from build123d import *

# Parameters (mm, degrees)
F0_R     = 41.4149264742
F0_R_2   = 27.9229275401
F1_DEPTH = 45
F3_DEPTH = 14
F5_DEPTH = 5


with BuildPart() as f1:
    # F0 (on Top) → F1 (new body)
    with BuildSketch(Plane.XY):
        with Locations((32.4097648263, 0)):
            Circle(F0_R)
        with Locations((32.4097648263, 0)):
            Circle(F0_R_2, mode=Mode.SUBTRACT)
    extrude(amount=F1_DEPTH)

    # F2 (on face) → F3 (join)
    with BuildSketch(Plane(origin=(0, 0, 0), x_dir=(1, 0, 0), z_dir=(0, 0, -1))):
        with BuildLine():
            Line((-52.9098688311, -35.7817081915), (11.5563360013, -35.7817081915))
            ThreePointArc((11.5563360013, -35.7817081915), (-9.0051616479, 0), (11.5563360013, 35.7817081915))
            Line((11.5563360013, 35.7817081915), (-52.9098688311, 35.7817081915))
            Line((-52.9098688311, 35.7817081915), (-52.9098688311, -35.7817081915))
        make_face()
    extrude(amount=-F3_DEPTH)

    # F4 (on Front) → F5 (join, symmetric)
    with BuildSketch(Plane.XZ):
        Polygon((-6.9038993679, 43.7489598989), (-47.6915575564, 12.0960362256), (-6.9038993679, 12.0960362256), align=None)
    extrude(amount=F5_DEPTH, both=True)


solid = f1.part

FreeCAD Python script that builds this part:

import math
import FreeCAD as App
import Part
import Sketcher
from FreeCAD import Vector

doc = App.newDocument("Part")
body = doc.addObject("PartDesign::Body", "Body")

# Sketch on XY plane
sketch1 = doc.addObject("Sketcher::SketchObject", "Sketch")
body.addObject(sketch1)
sketch1.AttachmentSupport = (doc.XY_Plane, [""])
sketch1.MapMode = "FlatFace"
sketch1.addGeometry([
    Part.Circle(Vector(32, 0, 0), Vector(0, 0, 1), 41),
    Part.Circle(Vector(32, 0, 0), Vector(0, 0, 1), 28),
], False)
sketch1.addConstraint([
    Sketcher.Constraint("Coincident", 1, 3, 0, 3),
    Sketcher.Constraint("PointOnObject", 0, 3, -1),
    Sketcher.Constraint("Diameter", 0, 82.829853),
    Sketcher.Constraint("Diameter", 1, 55.845855),
    Sketcher.Constraint("DistanceX", -1, 1, 0, 3, 32.409765),
])
pad1 = doc.addObject("PartDesign::Pad", "Pad")
body.addObject(pad1)
pad1.Profile = sketch1
pad1.Length = 45

# Sketch on XY plane
sketch2 = doc.addObject("Sketcher::SketchObject", "Sketch001")
body.addObject(sketch2)
sketch2.AttachmentSupport = (doc.XY_Plane, [""])
sketch2.MapMode = "FlatFace"
sketch2.addGeometry([
    Part.LineSegment(Vector(-53, 36, 0), Vector(12, 36, 0)),
    Part.ArcOfCircle(Part.Circle(Vector(32, 0, 0), Vector(0, 0, 1), 41), math.radians(120), math.radians(240)),
    Part.LineSegment(Vector(12, -36, 0), Vector(-53, -36, 0)),
    Part.LineSegment(Vector(-53, -36, 0), Vector(-53, 36, 0)),
], False)
sketch2.addConstraint([
    Sketcher.Constraint("Coincident", 0, 2, 1, 1),
    Sketcher.Constraint("Coincident", 1, 2, 2, 1),
    Sketcher.Constraint("Coincident", 2, 2, 3, 1),
    Sketcher.Constraint("Coincident", 3, 2, 0, 1),
    Sketcher.Constraint("Horizontal", 0),
    Sketcher.Constraint("Horizontal", 2),
    Sketcher.Constraint("Vertical", 3),
    Sketcher.Constraint("Symmetric", 0, 2, 1, 2, -1),
    Sketcher.Constraint("Radius", 1, 41.414926),
    Sketcher.Constraint("DistanceX", 0, 1, 0, 2, 64.466205),
    Sketcher.Constraint("DistanceY", 3, 1, 3, 2, 71.563416),
    Sketcher.Constraint("DistanceX", 2, 2, -1, 1, 52.909869),
])
pad2 = doc.addObject("PartDesign::Pad", "Pad001")
body.addObject(pad2)
pad2.Profile = sketch2
pad2.Length = 14

# Sketch on XZ plane
sketch3 = doc.addObject("Sketcher::SketchObject", "Sketch002")
body.addObject(sketch3)
sketch3.AttachmentSupport = (doc.XZ_Plane, [""])
sketch3.MapMode = "FlatFace"
sketch3.addGeometry([
    Part.LineSegment(Vector(-7, 44, 0), Vector(-48, 12, 0)),
    Part.LineSegment(Vector(-48, 12, 0), Vector(-7, 12, 0)),
    Part.LineSegment(Vector(-7, 12, 0), Vector(-7, 44, 0)),
], False)
sketch3.addConstraint([
    Sketcher.Constraint("Coincident", 0, 2, 1, 1),
    Sketcher.Constraint("Coincident", 1, 2, 2, 1),
    Sketcher.Constraint("Coincident", 2, 2, 0, 1),
    Sketcher.Constraint("Horizontal", 1),
    Sketcher.Constraint("Vertical", 2),
    Sketcher.Constraint("DistanceX", 1, 1, 1, 2, 40.787658),
    Sketcher.Constraint("DistanceX", 1, 2, -1, 1, 6.903899),
    Sketcher.Constraint("DistanceY", 2, 1, 2, 2, 31.652924),
    Sketcher.Constraint("DistanceY", -1, 1, 2, 2, 43.74896),
])
pad3 = doc.addObject("PartDesign::Pad", "Pad002")
body.addObject(pad3)
pad3.Profile = sketch3
pad3.Length = 10
pad3.Midplane = True

doc.recompute()
